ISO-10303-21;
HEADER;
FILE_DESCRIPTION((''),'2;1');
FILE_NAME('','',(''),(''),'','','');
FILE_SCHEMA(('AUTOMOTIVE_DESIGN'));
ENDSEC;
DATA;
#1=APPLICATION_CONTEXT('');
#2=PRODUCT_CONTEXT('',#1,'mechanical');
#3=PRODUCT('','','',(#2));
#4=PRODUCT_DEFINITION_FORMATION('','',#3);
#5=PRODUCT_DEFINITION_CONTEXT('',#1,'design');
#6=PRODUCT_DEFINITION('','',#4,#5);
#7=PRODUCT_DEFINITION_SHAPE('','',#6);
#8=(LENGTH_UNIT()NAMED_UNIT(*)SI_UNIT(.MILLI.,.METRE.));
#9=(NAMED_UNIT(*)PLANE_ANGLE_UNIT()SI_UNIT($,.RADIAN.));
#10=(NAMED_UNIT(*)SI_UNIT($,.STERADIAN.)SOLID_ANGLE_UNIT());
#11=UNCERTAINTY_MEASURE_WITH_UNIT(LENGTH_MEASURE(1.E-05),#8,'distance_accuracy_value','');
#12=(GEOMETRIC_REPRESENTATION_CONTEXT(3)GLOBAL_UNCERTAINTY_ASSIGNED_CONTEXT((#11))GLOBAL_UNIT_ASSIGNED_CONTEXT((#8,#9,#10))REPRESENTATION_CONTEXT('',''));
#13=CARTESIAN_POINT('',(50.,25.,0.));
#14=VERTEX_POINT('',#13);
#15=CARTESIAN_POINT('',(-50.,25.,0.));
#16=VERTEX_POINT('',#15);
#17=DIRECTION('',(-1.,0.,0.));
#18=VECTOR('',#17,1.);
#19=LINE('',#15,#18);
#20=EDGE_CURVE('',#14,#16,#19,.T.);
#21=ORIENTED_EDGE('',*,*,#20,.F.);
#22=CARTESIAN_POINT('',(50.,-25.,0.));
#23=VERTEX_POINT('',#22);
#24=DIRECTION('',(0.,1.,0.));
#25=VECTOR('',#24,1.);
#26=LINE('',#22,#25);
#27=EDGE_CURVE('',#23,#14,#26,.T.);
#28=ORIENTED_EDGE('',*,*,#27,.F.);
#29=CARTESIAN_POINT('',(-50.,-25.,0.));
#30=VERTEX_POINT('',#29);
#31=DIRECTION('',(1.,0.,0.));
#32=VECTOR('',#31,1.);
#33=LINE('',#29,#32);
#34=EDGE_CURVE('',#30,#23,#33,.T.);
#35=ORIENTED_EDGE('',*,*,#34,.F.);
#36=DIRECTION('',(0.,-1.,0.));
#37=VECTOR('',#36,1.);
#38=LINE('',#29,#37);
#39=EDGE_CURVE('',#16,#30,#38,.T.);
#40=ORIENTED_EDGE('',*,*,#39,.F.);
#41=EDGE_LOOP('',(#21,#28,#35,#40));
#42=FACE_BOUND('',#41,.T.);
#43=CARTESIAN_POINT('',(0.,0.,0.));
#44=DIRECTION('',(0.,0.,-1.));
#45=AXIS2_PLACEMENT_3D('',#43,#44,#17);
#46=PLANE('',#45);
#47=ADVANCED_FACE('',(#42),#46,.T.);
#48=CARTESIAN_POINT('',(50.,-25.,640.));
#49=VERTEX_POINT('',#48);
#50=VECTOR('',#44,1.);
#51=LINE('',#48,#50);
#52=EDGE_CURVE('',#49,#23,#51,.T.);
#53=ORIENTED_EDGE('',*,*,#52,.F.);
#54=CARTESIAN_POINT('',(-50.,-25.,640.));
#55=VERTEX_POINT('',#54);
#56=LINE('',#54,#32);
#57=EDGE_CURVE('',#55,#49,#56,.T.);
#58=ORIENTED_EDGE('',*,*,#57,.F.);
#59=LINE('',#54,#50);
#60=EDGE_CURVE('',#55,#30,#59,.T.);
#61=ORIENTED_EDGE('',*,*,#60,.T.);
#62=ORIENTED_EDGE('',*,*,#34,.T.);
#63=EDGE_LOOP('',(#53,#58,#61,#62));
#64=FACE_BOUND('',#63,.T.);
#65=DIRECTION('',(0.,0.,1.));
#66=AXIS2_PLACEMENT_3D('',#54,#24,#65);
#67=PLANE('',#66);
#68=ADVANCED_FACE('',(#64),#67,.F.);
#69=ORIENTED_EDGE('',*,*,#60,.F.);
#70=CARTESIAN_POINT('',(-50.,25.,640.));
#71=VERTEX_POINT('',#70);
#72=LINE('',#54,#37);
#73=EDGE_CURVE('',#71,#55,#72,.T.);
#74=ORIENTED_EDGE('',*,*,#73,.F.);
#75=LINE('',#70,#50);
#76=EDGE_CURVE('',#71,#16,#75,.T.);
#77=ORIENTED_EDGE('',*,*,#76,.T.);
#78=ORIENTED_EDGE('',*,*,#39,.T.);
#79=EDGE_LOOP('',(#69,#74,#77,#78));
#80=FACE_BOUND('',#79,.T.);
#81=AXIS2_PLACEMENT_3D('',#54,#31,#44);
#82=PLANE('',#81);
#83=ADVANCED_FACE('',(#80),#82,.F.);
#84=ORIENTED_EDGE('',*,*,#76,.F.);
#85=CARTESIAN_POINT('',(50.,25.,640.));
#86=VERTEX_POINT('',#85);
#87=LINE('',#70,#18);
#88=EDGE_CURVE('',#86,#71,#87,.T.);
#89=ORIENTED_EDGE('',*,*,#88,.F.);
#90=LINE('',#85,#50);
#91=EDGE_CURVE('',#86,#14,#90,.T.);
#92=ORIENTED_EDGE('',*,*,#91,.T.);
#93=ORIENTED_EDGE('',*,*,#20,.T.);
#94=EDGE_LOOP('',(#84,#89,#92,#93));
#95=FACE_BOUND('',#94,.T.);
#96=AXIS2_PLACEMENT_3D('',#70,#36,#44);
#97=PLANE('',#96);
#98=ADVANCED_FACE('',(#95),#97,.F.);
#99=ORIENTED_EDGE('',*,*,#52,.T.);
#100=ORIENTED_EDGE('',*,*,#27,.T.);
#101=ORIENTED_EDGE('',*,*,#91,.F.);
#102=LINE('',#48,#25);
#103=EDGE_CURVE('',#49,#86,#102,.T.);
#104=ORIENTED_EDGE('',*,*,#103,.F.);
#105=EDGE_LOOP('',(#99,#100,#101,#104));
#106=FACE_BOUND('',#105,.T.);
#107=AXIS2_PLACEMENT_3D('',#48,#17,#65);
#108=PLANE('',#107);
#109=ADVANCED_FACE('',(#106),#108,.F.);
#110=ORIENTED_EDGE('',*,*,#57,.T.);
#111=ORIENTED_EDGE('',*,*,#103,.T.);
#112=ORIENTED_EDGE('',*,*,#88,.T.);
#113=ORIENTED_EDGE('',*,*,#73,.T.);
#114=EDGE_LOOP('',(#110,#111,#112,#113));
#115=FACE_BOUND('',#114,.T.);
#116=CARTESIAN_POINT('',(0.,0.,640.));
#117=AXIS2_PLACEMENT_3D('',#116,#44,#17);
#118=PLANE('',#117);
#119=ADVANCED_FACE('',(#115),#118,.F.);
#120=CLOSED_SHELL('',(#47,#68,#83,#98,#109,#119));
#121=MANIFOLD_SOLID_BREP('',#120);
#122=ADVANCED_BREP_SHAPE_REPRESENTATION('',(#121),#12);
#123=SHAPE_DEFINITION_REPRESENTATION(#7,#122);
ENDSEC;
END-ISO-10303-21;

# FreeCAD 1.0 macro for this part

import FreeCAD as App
import Part
import Sketcher
from FreeCAD import Vector

doc = App.newDocument("Part")
body = doc.addObject("PartDesign::Body", "Body")

# Sketch on XY plane
sketch1 = body.newObject("Sketcher::SketchObject", "Sketch")
sketch1.AttachmentSupport = (doc.getObject("XY_Plane"), [""])
sketch1.MapMode = "FlatFace"
sketch1.addGeometry(Part.LineSegment(Vector(-50, 25, 0), Vector(-50, -25, 0)), False)
sketch1.addGeometry(Part.LineSegment(Vector(-50, -25, 0), Vector(50, -25, 0)), False)
sketch1.addGeometry(Part.LineSegment(Vector(50, -25, 0), Vector(50, 25, 0)), False)
sketch1.addGeometry(Part.LineSegment(Vector(50, 25, 0), Vector(-50, 25, 0)), False)
sketch1.addConstraint(Sketcher.Constraint("Coincident", 0, 2, 1, 1))
sketch1.addConstraint(Sketcher.Constraint("Coincident", 1, 2, 2, 1))
sketch1.addConstraint(Sketcher.Constraint("Coincident", 2, 2, 3, 1))
sketch1.addConstraint(Sketcher.Constraint("Coincident", 3, 2, 0, 1))
sketch1.addConstraint(Sketcher.Constraint("Vertical", 0))
sketch1.addConstraint(Sketcher.Constraint("Horizontal", 1))
sketch1.addConstraint(Sketcher.Constraint("Vertical", 2))
sketch1.addConstraint(Sketcher.Constraint("Horizontal", 3))
sketch1.addConstraint(Sketcher.Constraint("Symmetric", 0, 2, 2, 2, -1, 1))
sketch1.addConstraint(Sketcher.Constraint("DistanceX", 1, 1, 1, 2, 100.0))
sketch1.addConstraint(Sketcher.Constraint("DistanceY", 0, 2, 0, 1, 50.0))
pad1 = body.newObject("PartDesign::Pad", "Pad")
pad1.Profile = sketch1
pad1.Length = 640

doc.recompute()
